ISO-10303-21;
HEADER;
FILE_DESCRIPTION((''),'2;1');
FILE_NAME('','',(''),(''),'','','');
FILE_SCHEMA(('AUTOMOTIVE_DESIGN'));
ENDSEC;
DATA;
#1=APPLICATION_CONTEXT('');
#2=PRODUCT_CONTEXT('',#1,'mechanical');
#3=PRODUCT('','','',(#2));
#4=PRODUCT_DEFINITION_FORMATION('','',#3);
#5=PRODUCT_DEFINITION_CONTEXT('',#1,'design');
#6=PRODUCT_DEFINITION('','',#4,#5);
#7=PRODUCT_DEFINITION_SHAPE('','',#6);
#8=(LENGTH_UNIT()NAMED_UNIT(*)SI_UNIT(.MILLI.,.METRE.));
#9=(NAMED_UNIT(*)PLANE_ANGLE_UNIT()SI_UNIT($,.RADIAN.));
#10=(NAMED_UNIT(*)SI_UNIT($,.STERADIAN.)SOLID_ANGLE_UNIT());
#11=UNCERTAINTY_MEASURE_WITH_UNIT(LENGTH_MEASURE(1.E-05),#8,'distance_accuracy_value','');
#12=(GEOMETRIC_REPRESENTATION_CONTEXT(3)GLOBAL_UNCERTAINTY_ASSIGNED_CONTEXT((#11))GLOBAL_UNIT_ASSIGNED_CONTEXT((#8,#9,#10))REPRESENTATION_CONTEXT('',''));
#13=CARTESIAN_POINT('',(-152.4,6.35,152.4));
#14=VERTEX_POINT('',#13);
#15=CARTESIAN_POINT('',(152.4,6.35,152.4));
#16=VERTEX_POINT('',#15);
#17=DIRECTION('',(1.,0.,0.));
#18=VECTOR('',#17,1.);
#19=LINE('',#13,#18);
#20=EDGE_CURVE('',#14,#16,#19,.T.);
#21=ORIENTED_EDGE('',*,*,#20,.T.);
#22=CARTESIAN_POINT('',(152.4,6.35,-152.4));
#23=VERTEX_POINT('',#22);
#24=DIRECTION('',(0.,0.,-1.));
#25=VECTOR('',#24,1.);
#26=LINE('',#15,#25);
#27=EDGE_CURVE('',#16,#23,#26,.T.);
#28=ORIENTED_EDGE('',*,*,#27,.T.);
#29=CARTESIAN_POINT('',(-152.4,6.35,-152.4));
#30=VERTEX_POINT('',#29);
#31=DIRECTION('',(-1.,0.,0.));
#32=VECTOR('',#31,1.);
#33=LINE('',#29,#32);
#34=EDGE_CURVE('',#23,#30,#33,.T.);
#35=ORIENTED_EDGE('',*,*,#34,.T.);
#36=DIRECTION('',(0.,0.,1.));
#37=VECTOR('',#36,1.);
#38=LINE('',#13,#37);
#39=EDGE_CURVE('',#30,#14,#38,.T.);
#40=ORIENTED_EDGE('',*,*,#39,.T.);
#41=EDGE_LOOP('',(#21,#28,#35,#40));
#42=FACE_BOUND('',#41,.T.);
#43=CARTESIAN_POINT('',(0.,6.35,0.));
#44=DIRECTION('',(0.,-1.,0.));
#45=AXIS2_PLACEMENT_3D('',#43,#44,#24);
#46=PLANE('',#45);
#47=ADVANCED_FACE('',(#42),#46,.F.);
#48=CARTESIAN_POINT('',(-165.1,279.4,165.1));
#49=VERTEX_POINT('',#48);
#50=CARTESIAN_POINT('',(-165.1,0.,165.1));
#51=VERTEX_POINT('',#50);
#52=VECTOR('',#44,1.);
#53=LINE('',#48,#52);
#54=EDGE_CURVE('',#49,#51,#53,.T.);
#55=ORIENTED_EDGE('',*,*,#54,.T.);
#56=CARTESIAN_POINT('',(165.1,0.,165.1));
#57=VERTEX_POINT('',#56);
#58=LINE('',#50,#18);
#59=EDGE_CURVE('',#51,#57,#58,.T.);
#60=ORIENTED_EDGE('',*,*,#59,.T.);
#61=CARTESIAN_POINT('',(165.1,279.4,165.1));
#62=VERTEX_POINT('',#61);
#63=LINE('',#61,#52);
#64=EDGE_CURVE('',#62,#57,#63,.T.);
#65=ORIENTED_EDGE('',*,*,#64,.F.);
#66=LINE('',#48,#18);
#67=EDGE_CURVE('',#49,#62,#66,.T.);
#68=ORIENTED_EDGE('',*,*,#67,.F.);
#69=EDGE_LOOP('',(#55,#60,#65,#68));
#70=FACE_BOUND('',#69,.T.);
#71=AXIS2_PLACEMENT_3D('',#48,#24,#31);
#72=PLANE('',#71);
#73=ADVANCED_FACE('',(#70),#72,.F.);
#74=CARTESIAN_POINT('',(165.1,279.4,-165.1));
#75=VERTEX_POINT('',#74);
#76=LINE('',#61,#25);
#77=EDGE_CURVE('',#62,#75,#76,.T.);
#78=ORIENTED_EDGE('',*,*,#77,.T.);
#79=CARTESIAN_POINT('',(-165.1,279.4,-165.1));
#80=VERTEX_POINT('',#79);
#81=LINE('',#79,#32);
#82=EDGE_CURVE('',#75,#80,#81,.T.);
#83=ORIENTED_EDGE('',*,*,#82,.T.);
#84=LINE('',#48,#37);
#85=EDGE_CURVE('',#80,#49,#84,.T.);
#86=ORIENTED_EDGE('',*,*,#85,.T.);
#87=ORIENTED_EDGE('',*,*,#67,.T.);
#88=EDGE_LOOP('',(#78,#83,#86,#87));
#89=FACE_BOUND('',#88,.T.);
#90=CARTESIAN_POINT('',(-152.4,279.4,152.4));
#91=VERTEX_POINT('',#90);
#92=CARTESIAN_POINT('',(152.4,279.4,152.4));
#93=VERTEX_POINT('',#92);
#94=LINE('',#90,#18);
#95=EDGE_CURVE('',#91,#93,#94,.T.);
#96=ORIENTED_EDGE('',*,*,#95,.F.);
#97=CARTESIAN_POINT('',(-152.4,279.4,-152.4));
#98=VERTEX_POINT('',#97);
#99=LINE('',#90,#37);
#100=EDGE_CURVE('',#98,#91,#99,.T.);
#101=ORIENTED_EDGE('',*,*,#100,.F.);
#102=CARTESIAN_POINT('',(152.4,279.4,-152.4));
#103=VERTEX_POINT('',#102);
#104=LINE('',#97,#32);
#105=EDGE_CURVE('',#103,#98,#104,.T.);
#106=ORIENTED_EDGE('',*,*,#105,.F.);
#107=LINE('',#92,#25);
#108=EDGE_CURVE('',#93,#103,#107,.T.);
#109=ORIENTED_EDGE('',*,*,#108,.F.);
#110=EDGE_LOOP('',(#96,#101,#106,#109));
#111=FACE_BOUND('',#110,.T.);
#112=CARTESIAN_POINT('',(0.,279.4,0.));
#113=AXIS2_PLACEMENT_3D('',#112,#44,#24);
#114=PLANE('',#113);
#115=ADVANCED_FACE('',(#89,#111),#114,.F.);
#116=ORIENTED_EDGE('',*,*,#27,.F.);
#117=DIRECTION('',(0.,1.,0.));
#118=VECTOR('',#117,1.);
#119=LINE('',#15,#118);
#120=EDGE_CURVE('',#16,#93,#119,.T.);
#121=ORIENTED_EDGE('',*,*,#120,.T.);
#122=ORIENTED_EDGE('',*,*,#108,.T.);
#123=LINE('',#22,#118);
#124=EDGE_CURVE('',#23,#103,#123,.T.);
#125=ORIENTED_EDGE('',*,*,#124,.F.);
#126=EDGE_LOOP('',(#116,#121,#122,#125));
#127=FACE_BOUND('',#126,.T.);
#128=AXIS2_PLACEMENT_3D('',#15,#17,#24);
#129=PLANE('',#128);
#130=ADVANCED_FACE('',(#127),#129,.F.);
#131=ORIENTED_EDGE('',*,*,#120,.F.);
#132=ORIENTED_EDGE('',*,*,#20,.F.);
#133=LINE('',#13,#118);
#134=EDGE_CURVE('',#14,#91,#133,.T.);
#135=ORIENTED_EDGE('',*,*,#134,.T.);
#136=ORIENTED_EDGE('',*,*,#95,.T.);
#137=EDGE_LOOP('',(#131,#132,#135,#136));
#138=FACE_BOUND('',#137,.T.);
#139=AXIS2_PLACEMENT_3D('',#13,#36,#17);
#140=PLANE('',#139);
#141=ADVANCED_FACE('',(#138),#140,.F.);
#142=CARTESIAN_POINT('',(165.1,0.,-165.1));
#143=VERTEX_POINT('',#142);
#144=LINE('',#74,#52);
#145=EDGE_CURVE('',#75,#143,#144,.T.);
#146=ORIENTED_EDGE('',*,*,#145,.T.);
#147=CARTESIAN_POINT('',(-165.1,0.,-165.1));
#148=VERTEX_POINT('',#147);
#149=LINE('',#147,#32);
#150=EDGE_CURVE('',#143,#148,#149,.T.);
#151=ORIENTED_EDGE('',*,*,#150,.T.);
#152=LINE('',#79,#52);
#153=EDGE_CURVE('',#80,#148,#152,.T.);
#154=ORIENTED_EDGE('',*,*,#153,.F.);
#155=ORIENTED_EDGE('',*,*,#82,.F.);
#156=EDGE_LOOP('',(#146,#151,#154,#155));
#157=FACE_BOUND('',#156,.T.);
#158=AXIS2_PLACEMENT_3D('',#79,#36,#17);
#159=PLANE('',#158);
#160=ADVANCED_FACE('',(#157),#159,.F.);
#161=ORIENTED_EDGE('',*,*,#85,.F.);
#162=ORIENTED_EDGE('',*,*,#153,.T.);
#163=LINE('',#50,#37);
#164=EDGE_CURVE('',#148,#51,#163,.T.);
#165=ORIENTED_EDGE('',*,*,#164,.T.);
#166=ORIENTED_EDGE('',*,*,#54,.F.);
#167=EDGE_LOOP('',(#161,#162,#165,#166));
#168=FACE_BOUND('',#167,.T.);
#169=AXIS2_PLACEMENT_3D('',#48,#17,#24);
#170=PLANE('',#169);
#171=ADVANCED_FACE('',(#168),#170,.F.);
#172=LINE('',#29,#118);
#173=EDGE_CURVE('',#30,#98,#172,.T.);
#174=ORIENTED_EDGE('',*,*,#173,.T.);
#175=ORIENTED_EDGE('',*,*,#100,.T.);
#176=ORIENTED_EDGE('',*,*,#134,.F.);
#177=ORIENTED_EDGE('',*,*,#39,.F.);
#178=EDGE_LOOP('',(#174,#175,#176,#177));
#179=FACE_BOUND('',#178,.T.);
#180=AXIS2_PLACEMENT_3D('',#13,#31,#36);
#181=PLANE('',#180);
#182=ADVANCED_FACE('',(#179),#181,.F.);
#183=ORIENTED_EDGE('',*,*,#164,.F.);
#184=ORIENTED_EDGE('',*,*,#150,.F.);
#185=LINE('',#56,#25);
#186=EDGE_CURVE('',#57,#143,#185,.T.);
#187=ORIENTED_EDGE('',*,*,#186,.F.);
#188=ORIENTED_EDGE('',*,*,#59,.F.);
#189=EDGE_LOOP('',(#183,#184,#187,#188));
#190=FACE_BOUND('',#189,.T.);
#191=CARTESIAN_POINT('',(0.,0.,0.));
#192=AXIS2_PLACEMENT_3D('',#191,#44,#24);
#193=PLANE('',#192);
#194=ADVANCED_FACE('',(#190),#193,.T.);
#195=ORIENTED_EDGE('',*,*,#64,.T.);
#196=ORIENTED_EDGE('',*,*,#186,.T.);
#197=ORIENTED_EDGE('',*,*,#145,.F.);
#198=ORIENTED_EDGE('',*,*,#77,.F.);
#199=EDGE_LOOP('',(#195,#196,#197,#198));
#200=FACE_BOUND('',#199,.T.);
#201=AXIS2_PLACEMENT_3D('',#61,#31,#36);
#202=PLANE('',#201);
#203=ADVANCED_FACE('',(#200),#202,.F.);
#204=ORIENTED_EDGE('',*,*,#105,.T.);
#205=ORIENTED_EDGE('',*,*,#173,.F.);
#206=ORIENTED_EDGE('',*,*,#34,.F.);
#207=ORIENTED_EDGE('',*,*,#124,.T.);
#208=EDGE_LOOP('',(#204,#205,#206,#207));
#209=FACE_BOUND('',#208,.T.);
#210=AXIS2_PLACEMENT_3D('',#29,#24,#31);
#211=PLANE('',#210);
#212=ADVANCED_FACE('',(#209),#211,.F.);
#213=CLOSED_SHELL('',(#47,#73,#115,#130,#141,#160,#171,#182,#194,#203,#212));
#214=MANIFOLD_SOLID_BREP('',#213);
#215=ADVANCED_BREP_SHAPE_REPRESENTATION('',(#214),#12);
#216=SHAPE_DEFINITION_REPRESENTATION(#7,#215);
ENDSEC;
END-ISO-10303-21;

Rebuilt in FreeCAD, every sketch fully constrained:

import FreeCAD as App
import Part
import Sketcher
from FreeCAD import Vector
Q = App.Units.Quantity

doc = App.newDocument("Part")
body = doc.addObject("PartDesign::Body", "Body")

sketch1 = body.newObject("Sketcher::SketchObject", "Sketch")
sketch1.AttachmentSupport = (doc.getObject("XZ_Plane"), [""])
sketch1.MapMode = "FlatFace"
sketch1.addGeometry(Part.LineSegment(Vector(-165, -165, 0), Vector(-165, 165, 0)), False)
sketch1.addGeometry(Part.LineSegment(Vector(-165, 165, 0), Vector(165, 165, 0)), False)
sketch1.addGeometry(Part.LineSegment(Vector(165, 165, 0), Vector(165, -165, 0)), False)
sketch1.addGeometry(Part.LineSegment(Vector(165, -165, 0), Vector(-165, -165, 0)), False)
sketch1.addConstraint(Sketcher.Constraint("Coincident", 0, 2, 1, 1))
sketch1.addConstraint(Sketcher.Constraint("Coincident", 1, 2, 2, 1))
sketch1.addConstraint(Sketcher.Constraint("Coincident", 2, 2, 3, 1))
sketch1.addConstraint(Sketcher.Constraint("Coincident", 3, 2, 0, 1))
sketch1.addConstraint(Sketcher.Constraint("Vertical", 0))
sketch1.addConstraint(Sketcher.Constraint("Horizontal", 1))
sketch1.addConstraint(Sketcher.Constraint("Vertical", 2))
sketch1.addConstraint(Sketcher.Constraint("Horizontal", 3))
sketch1.addConstraint(Sketcher.Constraint("Symmetric", 0, 2, 2, 2, -1, 1))
sketch1.addConstraint(Sketcher.Constraint("Equal", 3, 0))
sketch1.addConstraint(Sketcher.Constraint("DistanceX", 1, 1, 1, 2, Q("13 in")))
pad1 = body.newObject("PartDesign::Pad", "Pad")
pad1.Profile = sketch1
pad1.Length = Q("11 in")
pad1.Reversed = True

sketch2 = body.newObject("Sketcher::SketchObject", "Sketch001")
sketch2.AttachmentSupport = (doc.getObject("XZ_Plane"), [""])
sketch2.MapMode = "FlatFace"
sketch2.AttachmentOffset = App.Placement(Vector(0, 0, -11 * 25.4), App.Rotation())
sketch2.addGeometry(Part.LineSegment(Vector(-152, -152, 0), Vector(-152, 152, 0)), False)
sketch2.addGeometry(Part.LineSegment(Vector(-152, 152, 0), Vector(152, 152, 0)), False)
sketch2.addGeometry(Part.LineSegment(Vector(152, 152, 0), Vector(152, -152, 0)), False)
sketch2.addGeometry(Part.LineSegment(Vector(152, -152, 0), Vector(-152, -152, 0)), False)
sketch2.addConstraint(Sketcher.Constraint("Coincident", 0, 2, 1, 1))
sketch2.addConstraint(Sketcher.Constraint("Coincident", 1, 2, 2, 1))
sketch2.addConstraint(Sketcher.Constraint("Coincident", 2, 2, 3, 1))
sketch2.addConstraint(Sketcher.Constraint("Coincident", 3, 2, 0, 1))
sketch2.addConstraint(Sketcher.Constraint("Vertical", 0))
sketch2.addConstraint(Sketcher.Constraint("Horizontal", 1))
sketch2.addConstraint(Sketcher.Constraint("Vertical", 2))
sketch2.addConstraint(Sketcher.Constraint("Horizontal", 3))
sketch2.addConstraint(Sketcher.Constraint("Symmetric", 0, 2, 2, 2, -1, 1))
sketch2.addConstraint(Sketcher.Constraint("Equal", 3, 0))
sketch2.addConstraint(Sketcher.Constraint("DistanceX", 1, 1, 1, 2, Q("12 in")))
pocket1 = body.newObject("PartDesign::Pocket", "Pocket")
pocket1.Profile = sketch2
pocket1.Length = Q("10.75 in")
pocket1.Reversed = True

doc.recompute()
